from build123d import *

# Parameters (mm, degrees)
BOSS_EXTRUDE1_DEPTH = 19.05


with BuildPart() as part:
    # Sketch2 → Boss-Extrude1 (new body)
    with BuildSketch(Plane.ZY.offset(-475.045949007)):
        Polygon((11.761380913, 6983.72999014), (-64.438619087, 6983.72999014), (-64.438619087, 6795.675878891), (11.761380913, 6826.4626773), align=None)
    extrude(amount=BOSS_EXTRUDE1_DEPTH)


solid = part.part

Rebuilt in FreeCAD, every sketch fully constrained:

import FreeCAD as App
import Part
import Sketcher

V = App.Vector
Q = App.Units.Quantity


def add_polygon(sketch, points):
    """Adds a closed chain of lines whose ends are joined by coincident constraints."""
    first, n = sketch.GeometryCount, len(points)
    for a, b in zip(points, points[1:] + points[:1]):
        sketch.addGeometry(Part.LineSegment(App.Vector(*a, 0), App.Vector(*b, 0)), False)
    for i in range(n):
        sketch.addConstraint(Sketcher.Constraint("Coincident", first + i, 2, first + (i + 1) % n, 1))

doc = App.newDocument("Part")
body = doc.addObject("PartDesign::Body", "Body")

# Sketch on YZ plane
sketch1 = body.newObject("Sketcher::SketchObject", "Sketch")
sketch1.AttachmentSupport = (doc.getObject("YZ_Plane"), [""])
sketch1.MapMode = "FlatFace"
sketch1.AttachmentOffset = App.Placement(V(0, 0, 475.045949), App.Rotation())
add_polygon(sketch1, [(6984, 12), (6984, -64), (6796, -64), (6826, 12)])  # lines 0-3
sketch1.addConstraint([
    Sketcher.Constraint("Vertical", 0),
    Sketcher.Constraint("Horizontal", 1),
    Sketcher.Constraint("Horizontal", 3),
    Sketcher.Constraint("DistanceY", 0, 2, 0, 1, Q("3 in")),
    Sketcher.Constraint("Angle", 2, Q("68 deg")),
    Sketcher.Constraint("DistanceX", 1, 2, 1, 1, 188.054111),
    Sketcher.Constraint("DistanceX", -1, 1, 0, 2, 6983.72999),
    Sketcher.Constraint("DistanceY", 0, 2, -1, 1, 64.438619),
])
pad1 = body.newObject("PartDesign::Pad", "Pad")
pad1.Profile = sketch1
pad1.Length = Q("0.75 in")
pad1.Reversed = True

doc.recompute()
